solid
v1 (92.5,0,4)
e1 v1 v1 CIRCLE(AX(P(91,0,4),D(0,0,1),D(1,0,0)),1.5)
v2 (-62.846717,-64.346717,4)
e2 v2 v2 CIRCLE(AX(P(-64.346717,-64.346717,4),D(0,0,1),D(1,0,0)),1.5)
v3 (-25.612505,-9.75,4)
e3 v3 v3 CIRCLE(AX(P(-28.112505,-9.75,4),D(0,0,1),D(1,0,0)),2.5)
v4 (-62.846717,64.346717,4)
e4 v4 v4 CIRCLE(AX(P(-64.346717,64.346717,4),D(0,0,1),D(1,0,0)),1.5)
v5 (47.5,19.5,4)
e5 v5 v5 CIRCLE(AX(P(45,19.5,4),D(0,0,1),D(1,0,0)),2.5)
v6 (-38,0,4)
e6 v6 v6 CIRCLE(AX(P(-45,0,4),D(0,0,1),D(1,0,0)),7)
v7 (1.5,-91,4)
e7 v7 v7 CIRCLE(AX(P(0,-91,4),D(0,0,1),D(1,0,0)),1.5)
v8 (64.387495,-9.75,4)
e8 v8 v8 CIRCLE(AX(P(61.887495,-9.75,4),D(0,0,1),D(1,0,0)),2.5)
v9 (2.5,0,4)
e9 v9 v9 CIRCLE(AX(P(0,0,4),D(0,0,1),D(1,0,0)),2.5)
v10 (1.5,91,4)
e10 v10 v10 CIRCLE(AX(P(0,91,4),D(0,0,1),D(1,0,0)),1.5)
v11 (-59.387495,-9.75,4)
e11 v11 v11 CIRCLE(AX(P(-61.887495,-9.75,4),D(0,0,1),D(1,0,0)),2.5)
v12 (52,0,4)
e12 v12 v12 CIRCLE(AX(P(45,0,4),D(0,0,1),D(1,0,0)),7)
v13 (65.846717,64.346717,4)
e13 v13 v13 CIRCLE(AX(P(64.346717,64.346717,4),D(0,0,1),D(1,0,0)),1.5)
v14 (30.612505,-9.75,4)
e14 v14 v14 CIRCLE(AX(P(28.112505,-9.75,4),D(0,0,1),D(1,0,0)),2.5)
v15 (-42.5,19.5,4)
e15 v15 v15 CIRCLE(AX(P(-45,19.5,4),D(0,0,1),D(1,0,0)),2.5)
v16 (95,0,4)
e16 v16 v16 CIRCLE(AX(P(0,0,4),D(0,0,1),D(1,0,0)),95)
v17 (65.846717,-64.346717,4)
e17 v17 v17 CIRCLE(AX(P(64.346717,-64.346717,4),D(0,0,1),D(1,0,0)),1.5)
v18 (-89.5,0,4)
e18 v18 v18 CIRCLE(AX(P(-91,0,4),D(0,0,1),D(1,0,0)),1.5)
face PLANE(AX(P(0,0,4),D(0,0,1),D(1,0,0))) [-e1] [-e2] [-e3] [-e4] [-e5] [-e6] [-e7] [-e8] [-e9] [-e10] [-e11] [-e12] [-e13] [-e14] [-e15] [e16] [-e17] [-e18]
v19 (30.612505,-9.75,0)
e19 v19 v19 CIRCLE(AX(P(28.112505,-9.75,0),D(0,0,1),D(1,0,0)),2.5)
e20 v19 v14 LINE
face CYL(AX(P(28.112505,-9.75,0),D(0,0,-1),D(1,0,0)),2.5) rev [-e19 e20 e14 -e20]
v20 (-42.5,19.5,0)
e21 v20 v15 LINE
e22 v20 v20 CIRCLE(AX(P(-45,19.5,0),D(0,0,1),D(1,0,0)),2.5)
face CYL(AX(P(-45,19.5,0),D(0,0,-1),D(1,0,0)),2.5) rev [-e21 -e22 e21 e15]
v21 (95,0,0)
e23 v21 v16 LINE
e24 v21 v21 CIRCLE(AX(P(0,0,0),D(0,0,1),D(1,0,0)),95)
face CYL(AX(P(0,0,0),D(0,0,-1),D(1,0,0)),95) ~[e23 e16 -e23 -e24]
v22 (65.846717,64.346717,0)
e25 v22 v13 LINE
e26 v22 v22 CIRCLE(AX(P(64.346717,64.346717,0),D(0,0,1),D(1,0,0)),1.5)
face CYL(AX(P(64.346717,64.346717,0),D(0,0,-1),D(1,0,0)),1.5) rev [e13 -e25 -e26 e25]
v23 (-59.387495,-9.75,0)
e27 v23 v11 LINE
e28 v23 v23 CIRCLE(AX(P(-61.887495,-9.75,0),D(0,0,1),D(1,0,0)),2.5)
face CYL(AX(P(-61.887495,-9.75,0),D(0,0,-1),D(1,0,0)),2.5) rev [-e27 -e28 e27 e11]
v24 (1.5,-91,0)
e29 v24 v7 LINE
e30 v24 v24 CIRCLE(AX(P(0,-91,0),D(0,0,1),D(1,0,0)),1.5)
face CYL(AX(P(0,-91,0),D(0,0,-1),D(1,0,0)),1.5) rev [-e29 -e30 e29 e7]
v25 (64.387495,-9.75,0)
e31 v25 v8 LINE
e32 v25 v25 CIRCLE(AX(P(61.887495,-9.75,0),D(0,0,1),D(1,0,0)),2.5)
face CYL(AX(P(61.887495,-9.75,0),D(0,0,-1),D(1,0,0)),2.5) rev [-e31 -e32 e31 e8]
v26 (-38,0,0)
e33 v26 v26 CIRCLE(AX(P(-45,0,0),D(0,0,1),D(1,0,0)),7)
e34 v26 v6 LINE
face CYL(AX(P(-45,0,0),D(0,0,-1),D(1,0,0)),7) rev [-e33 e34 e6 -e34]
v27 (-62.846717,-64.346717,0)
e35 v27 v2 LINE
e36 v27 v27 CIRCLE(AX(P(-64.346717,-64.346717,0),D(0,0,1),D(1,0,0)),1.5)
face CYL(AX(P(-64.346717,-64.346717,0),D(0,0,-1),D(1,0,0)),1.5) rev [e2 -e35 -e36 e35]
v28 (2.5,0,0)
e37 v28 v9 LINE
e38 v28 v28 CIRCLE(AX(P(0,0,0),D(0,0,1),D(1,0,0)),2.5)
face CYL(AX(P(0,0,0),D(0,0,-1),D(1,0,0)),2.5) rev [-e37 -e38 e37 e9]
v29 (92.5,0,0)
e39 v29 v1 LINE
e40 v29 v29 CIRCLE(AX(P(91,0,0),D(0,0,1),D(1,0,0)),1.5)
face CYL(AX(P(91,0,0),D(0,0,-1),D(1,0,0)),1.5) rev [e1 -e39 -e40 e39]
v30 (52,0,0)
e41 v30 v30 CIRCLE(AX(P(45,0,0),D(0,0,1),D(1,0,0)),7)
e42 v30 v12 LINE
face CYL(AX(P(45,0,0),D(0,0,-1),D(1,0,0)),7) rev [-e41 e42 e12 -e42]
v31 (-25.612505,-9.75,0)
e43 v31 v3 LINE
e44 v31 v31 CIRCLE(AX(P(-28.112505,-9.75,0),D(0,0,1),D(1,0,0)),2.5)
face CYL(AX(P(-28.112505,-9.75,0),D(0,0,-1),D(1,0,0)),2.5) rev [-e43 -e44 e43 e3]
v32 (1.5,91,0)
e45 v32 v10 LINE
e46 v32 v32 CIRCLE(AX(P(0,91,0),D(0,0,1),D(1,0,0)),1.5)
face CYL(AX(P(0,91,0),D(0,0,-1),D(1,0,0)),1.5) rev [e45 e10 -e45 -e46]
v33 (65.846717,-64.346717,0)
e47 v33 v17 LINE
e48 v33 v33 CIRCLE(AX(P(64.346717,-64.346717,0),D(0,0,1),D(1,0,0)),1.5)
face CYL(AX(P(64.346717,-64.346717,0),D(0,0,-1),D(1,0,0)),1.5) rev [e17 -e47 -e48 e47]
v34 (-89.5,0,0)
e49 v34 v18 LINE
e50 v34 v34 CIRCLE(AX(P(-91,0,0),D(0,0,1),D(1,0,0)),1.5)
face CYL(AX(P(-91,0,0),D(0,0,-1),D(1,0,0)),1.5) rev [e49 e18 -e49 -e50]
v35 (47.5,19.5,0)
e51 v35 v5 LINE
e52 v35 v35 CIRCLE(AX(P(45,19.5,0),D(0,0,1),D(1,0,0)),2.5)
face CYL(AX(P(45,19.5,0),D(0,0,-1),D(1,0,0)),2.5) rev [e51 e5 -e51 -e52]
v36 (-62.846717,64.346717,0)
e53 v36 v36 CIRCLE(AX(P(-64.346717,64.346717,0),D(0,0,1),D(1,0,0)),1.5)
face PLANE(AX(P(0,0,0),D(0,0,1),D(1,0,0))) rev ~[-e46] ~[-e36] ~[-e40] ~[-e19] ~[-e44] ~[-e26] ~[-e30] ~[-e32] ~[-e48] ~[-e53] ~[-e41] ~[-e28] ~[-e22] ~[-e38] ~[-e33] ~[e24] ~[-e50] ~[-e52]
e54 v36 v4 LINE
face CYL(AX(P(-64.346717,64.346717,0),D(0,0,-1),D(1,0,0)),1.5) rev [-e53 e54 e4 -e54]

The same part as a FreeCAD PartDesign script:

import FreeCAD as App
import Part
import Sketcher
from FreeCAD import Vector
Q = App.Units.Quantity

doc = App.newDocument("Part")
params = doc.addObject("Spreadsheet::Sheet", "Params")
for row, (alias, value) in enumerate([
    ("sketch1_diameter", "190 mm"),
    ("sketch1_diameter2", "3 mm"),
    ("sketch1_diameter3", "5 mm"),
    ("sketch1_diameter4", "14 mm"),
    ("pad1_length", "4 mm"),
], start=1):
    params.set(f"A{row}", alias)
    params.set(f"B{row}", "=" + value)
    params.setAlias(f"B{row}", alias)

body = doc.addObject("PartDesign::Body", "Body")

# Sketch on XY plane
sketch1 = body.newObject("Sketcher::SketchObject", "Sketch")
sketch1.AttachmentSupport = (doc.getObject("XY_Plane"), [""])
sketch1.MapMode = "FlatFace"
sketch1.addGeometry(Part.Circle(Vector(0, 0, 0), Vector(0, 0, 1), 95), False)
sketch1.addGeometry(Part.Circle(Vector(-64.3, -64.3, 0), Vector(0, 0, 1), 1.5), False)
sketch1.addGeometry(Part.Circle(Vector(-61.9, -9.8, 0), Vector(0, 0, 1), 2.5), False)
sketch1.addGeometry(Part.Circle(Vector(-28.1, -9.8, 0), Vector(0, 0, 1), 2.5), False)
sketch1.addGeometry(Part.Circle(Vector(0, -91, 0), Vector(0, 0, 1), 1.5), False)
sketch1.addGeometry(Part.Circle(Vector(64.3, -64.3, 0), Vector(0, 0, 1), 1.5), False)
sketch1.addGeometry(Part.Circle(Vector(28.1, -9.8, 0), Vector(0, 0, 1), 2.5), False)
sketch1.addGeometry(Part.Circle(Vector(61.9, -9.8, 0), Vector(0, 0, 1), 2.5), False)
sketch1.addGeometry(Part.Circle(Vector(-91, 0, 0), Vector(0, 0, 1), 1.5), False)
sketch1.addGeometry(Part.Circle(Vector(-45, 0, 0), Vector(0, 0, 1), 7), False)
sketch1.addGeometry(Part.Circle(Vector(-45, 19.5, 0), Vector(0, 0, 1), 2.5), False)
sketch1.addGeometry(Part.Circle(Vector(-64.3, 64.3, 0), Vector(0, 0, 1), 1.5), False)
sketch1.addGeometry(Part.Circle(Vector(0, 0, 0), Vector(0, 0, 1), 2.5), False)
sketch1.addGeometry(Part.Circle(Vector(45, 0, 0), Vector(0, 0, 1), 7), False)
sketch1.addGeometry(Part.Circle(Vector(45, 19.5, 0), Vector(0, 0, 1), 2.5), False)
sketch1.addGeometry(Part.Circle(Vector(91, 0, 0), Vector(0, 0, 1), 1.5), False)
sketch1.addGeometry(Part.Circle(Vector(0, 91, 0), Vector(0, 0, 1), 1.5), False)
sketch1.addGeometry(Part.Circle(Vector(64.3, 64.3, 0), Vector(0, 0, 1), 1.5), False)
sketch1.addConstraint(Sketcher.Constraint("Coincident", 0, 3, -1, 1))
sketch1.addConstraint(Sketcher.Constraint("Coincident", 12, 3, -1, 1))
sketch1.addConstraint(Sketcher.Constraint("Equal", 2, 3))
sketch1.addConstraint(Sketcher.Constraint("Equal", 1, 4))
sketch1.addConstraint(Sketcher.Constraint("Equal", 4, 5))
sketch1.addConstraint(Sketcher.Constraint("Equal", 3, 6))
sketch1.addConstraint(Sketcher.Constraint("Equal", 6, 7))
sketch1.addConstraint(Sketcher.Constraint("Equal", 5, 8))
sketch1.addConstraint(Sketcher.Constraint("Equal", 7, 10))
sketch1.addConstraint(Sketcher.Constraint("Equal", 8, 11))
sketch1.addConstraint(Sketcher.Constraint("Equal", 10, 12))
sketch1.addConstraint(Sketcher.Constraint("Equal", 9, 13))
sketch1.addConstraint(Sketcher.Constraint("Equal", 12, 14))
sketch1.addConstraint(Sketcher.Constraint("Equal", 11, 15))
sketch1.addConstraint(Sketcher.Constraint("Equal", 15, 16))
sketch1.addConstraint(Sketcher.Constraint("Equal", 16, 17))
sketch1.addConstraint(Sketcher.Constraint("Symmetric", 5, 3, 11, 3, -1, 1))
sketch1.addConstraint(Sketcher.Constraint("Symmetric", 9, 3, 13, 3, -1, 1))
sketch1.addConstraint(Sketcher.Constraint("Symmetric", 8, 3, 15, 3, -1, 1))
sketch1.addConstraint(Sketcher.Constraint("Symmetric", 4, 3, 16, 3, -1, 1))
sketch1.addConstraint(Sketcher.Constraint("Symmetric", 1, 3, 17, 3, -1, 1))
sketch1.addConstraint(Sketcher.Constraint("Symmetric", 1, 3, 5, 3, -2))
sketch1.addConstraint(Sketcher.Constraint("Symmetric", 3, 3, 6, 3, -2))
sketch1.addConstraint(Sketcher.Constraint("Symmetric", 2, 3, 7, 3, -2))
sketch1.addConstraint(Sketcher.Constraint("Symmetric", 10, 3, 14, 3, -2))
sketch1.addConstraint(Sketcher.Constraint("PointOnObject", 4, 3, -2))
sketch1.addConstraint(Sketcher.Constraint("PointOnObject", 8, 3, -1))
sketch1.addConstraint(Sketcher.Constraint("PointOnObject", 9, 3, -1))
sketch1.addConstraint(Sketcher.Constraint("Horizontal", 2, 3, 3, 3))
sketch1.addConstraint(Sketcher.Constraint("Vertical", 9, 3, 10, 3))
sketch1.addConstraint(Sketcher.Constraint("Diameter", 0, Q("190 mm")))
sketch1.addConstraint(Sketcher.Constraint("Diameter", 1, Q("3 mm")))
sketch1.addConstraint(Sketcher.Constraint("Diameter", 2, Q("5 mm")))
sketch1.addConstraint(Sketcher.Constraint("Diameter", 9, Q("14 mm")))
sketch1.addConstraint(Sketcher.Constraint("DistanceY", 4, 3, -1, 1, Q("91 mm")))
sketch1.addConstraint(Sketcher.Constraint("DistanceX", 8, 3, -1, 1, Q("91 mm")))
sketch1.addConstraint(Sketcher.Constraint("DistanceX", 9, 3, -1, 1, Q("45 mm")))
sketch1.addConstraint(Sketcher.Constraint("DistanceX", 2, 3, 6, 3, Q("90 mm")))
sketch1.addConstraint(Sketcher.Constraint("DistanceY", -1, 1, 10, 3, Q("19.5 mm")))
sketch1.addConstraint(Sketcher.Constraint("DistanceY", 2, 3, -1, 1, Q("9.75 mm")))
sketch1.addConstraint(Sketcher.Constraint("DistanceX", 1, 3, 2, 3, Q("2.459222 mm")))
sketch1.addConstraint(Sketcher.Constraint("DistanceX", 2, 3, 3, 3, Q("33.77499 mm")))
sketch1.addConstraint(Sketcher.Constraint("DistanceY", 1, 3, -1, 1, Q("64.346717 mm")))
sketch1.setExpression("Constraints[30]", "Params.sketch1_diameter")
sketch1.setExpression("Constraints[31]", "Params.sketch1_diameter2")
sketch1.setExpression("Constraints[32]", "Params.sketch1_diameter3")
sketch1.setExpression("Constraints[33]", "Params.sketch1_diameter4")
pad1 = body.newObject("PartDesign::Pad", "Pad")
pad1.Profile = sketch1
pad1.setExpression("Length", "Params.pad1_length")

doc.recompute()
